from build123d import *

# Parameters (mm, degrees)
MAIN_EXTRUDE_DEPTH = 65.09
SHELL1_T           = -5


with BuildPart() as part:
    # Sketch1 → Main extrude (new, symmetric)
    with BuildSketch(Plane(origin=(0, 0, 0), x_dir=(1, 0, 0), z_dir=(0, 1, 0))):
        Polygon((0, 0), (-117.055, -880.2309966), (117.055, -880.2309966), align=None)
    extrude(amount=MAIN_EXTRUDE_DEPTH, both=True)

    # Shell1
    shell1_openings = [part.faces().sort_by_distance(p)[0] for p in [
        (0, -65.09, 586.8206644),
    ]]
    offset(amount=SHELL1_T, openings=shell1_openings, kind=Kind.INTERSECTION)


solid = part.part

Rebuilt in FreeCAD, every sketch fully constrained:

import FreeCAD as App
import Part
import Sketcher

V = App.Vector
Q = App.Units.Quantity


def faces_at(feature, points):
    """Names of the faces that lie closest to the given points."""
    faces = feature.Shape.Faces
    near = lambda p: min(range(len(faces)), key=lambda i: faces[i].distToShape(Part.Vertex(*p))[0])
    return sorted({f"Face{near(p) + 1}" for p in points})

doc = App.newDocument("Part")
body = doc.addObject("PartDesign::Body", "Body")

# Sketch on XZ plane
sketch1 = body.newObject("Sketcher::SketchObject", "Sketch")
sketch1.AttachmentSupport = (doc.getObject("XZ_Plane"), [""])
sketch1.MapMode = "FlatFace"
sketch1.addGeometry(Part.LineSegment(V(0, 0, 0), V(-117, 880, 0)), False)
sketch1.addGeometry(Part.LineSegment(V(-117, 880, 0), V(117, 880, 0)), False)
sketch1.addGeometry(Part.LineSegment(V(117, 880, 0), V(0, 0, 0)), False)
sketch1.addConstraint(Sketcher.Constraint("Coincident", 0, 2, 1, 1))
sketch1.addConstraint(Sketcher.Constraint("Coincident", 1, 2, 2, 1))
sketch1.addConstraint(Sketcher.Constraint("Coincident", 2, 2, 0, 1))
sketch1.addConstraint(Sketcher.Constraint("Horizontal", 1))
sketch1.addConstraint(Sketcher.Constraint("Coincident", 2, 2, -1, 1))
sketch1.addConstraint(Sketcher.Constraint("Equal", 0, 2))
sketch1.addConstraint(Sketcher.Constraint("DistanceX", 1, 1, 1, 2, Q("234.11 mm")))
sketch1.addConstraint(Sketcher.Constraint("Distance", 0, Q("887.98 mm")))
pad1 = body.newObject("PartDesign::Pad", "Pad")
pad1.Profile = sketch1
pad1.Length = 130.18
pad1.Midplane = True
doc.recompute()

thickness = body.newObject("PartDesign::Thickness", "Thickness")
thickness.Base = (pad1, faces_at(pad1, [(0, -65.09, 440.115)]))
thickness.Value = 5
thickness.Reversed = True
thickness.Join = "Intersection"

doc.recompute()
